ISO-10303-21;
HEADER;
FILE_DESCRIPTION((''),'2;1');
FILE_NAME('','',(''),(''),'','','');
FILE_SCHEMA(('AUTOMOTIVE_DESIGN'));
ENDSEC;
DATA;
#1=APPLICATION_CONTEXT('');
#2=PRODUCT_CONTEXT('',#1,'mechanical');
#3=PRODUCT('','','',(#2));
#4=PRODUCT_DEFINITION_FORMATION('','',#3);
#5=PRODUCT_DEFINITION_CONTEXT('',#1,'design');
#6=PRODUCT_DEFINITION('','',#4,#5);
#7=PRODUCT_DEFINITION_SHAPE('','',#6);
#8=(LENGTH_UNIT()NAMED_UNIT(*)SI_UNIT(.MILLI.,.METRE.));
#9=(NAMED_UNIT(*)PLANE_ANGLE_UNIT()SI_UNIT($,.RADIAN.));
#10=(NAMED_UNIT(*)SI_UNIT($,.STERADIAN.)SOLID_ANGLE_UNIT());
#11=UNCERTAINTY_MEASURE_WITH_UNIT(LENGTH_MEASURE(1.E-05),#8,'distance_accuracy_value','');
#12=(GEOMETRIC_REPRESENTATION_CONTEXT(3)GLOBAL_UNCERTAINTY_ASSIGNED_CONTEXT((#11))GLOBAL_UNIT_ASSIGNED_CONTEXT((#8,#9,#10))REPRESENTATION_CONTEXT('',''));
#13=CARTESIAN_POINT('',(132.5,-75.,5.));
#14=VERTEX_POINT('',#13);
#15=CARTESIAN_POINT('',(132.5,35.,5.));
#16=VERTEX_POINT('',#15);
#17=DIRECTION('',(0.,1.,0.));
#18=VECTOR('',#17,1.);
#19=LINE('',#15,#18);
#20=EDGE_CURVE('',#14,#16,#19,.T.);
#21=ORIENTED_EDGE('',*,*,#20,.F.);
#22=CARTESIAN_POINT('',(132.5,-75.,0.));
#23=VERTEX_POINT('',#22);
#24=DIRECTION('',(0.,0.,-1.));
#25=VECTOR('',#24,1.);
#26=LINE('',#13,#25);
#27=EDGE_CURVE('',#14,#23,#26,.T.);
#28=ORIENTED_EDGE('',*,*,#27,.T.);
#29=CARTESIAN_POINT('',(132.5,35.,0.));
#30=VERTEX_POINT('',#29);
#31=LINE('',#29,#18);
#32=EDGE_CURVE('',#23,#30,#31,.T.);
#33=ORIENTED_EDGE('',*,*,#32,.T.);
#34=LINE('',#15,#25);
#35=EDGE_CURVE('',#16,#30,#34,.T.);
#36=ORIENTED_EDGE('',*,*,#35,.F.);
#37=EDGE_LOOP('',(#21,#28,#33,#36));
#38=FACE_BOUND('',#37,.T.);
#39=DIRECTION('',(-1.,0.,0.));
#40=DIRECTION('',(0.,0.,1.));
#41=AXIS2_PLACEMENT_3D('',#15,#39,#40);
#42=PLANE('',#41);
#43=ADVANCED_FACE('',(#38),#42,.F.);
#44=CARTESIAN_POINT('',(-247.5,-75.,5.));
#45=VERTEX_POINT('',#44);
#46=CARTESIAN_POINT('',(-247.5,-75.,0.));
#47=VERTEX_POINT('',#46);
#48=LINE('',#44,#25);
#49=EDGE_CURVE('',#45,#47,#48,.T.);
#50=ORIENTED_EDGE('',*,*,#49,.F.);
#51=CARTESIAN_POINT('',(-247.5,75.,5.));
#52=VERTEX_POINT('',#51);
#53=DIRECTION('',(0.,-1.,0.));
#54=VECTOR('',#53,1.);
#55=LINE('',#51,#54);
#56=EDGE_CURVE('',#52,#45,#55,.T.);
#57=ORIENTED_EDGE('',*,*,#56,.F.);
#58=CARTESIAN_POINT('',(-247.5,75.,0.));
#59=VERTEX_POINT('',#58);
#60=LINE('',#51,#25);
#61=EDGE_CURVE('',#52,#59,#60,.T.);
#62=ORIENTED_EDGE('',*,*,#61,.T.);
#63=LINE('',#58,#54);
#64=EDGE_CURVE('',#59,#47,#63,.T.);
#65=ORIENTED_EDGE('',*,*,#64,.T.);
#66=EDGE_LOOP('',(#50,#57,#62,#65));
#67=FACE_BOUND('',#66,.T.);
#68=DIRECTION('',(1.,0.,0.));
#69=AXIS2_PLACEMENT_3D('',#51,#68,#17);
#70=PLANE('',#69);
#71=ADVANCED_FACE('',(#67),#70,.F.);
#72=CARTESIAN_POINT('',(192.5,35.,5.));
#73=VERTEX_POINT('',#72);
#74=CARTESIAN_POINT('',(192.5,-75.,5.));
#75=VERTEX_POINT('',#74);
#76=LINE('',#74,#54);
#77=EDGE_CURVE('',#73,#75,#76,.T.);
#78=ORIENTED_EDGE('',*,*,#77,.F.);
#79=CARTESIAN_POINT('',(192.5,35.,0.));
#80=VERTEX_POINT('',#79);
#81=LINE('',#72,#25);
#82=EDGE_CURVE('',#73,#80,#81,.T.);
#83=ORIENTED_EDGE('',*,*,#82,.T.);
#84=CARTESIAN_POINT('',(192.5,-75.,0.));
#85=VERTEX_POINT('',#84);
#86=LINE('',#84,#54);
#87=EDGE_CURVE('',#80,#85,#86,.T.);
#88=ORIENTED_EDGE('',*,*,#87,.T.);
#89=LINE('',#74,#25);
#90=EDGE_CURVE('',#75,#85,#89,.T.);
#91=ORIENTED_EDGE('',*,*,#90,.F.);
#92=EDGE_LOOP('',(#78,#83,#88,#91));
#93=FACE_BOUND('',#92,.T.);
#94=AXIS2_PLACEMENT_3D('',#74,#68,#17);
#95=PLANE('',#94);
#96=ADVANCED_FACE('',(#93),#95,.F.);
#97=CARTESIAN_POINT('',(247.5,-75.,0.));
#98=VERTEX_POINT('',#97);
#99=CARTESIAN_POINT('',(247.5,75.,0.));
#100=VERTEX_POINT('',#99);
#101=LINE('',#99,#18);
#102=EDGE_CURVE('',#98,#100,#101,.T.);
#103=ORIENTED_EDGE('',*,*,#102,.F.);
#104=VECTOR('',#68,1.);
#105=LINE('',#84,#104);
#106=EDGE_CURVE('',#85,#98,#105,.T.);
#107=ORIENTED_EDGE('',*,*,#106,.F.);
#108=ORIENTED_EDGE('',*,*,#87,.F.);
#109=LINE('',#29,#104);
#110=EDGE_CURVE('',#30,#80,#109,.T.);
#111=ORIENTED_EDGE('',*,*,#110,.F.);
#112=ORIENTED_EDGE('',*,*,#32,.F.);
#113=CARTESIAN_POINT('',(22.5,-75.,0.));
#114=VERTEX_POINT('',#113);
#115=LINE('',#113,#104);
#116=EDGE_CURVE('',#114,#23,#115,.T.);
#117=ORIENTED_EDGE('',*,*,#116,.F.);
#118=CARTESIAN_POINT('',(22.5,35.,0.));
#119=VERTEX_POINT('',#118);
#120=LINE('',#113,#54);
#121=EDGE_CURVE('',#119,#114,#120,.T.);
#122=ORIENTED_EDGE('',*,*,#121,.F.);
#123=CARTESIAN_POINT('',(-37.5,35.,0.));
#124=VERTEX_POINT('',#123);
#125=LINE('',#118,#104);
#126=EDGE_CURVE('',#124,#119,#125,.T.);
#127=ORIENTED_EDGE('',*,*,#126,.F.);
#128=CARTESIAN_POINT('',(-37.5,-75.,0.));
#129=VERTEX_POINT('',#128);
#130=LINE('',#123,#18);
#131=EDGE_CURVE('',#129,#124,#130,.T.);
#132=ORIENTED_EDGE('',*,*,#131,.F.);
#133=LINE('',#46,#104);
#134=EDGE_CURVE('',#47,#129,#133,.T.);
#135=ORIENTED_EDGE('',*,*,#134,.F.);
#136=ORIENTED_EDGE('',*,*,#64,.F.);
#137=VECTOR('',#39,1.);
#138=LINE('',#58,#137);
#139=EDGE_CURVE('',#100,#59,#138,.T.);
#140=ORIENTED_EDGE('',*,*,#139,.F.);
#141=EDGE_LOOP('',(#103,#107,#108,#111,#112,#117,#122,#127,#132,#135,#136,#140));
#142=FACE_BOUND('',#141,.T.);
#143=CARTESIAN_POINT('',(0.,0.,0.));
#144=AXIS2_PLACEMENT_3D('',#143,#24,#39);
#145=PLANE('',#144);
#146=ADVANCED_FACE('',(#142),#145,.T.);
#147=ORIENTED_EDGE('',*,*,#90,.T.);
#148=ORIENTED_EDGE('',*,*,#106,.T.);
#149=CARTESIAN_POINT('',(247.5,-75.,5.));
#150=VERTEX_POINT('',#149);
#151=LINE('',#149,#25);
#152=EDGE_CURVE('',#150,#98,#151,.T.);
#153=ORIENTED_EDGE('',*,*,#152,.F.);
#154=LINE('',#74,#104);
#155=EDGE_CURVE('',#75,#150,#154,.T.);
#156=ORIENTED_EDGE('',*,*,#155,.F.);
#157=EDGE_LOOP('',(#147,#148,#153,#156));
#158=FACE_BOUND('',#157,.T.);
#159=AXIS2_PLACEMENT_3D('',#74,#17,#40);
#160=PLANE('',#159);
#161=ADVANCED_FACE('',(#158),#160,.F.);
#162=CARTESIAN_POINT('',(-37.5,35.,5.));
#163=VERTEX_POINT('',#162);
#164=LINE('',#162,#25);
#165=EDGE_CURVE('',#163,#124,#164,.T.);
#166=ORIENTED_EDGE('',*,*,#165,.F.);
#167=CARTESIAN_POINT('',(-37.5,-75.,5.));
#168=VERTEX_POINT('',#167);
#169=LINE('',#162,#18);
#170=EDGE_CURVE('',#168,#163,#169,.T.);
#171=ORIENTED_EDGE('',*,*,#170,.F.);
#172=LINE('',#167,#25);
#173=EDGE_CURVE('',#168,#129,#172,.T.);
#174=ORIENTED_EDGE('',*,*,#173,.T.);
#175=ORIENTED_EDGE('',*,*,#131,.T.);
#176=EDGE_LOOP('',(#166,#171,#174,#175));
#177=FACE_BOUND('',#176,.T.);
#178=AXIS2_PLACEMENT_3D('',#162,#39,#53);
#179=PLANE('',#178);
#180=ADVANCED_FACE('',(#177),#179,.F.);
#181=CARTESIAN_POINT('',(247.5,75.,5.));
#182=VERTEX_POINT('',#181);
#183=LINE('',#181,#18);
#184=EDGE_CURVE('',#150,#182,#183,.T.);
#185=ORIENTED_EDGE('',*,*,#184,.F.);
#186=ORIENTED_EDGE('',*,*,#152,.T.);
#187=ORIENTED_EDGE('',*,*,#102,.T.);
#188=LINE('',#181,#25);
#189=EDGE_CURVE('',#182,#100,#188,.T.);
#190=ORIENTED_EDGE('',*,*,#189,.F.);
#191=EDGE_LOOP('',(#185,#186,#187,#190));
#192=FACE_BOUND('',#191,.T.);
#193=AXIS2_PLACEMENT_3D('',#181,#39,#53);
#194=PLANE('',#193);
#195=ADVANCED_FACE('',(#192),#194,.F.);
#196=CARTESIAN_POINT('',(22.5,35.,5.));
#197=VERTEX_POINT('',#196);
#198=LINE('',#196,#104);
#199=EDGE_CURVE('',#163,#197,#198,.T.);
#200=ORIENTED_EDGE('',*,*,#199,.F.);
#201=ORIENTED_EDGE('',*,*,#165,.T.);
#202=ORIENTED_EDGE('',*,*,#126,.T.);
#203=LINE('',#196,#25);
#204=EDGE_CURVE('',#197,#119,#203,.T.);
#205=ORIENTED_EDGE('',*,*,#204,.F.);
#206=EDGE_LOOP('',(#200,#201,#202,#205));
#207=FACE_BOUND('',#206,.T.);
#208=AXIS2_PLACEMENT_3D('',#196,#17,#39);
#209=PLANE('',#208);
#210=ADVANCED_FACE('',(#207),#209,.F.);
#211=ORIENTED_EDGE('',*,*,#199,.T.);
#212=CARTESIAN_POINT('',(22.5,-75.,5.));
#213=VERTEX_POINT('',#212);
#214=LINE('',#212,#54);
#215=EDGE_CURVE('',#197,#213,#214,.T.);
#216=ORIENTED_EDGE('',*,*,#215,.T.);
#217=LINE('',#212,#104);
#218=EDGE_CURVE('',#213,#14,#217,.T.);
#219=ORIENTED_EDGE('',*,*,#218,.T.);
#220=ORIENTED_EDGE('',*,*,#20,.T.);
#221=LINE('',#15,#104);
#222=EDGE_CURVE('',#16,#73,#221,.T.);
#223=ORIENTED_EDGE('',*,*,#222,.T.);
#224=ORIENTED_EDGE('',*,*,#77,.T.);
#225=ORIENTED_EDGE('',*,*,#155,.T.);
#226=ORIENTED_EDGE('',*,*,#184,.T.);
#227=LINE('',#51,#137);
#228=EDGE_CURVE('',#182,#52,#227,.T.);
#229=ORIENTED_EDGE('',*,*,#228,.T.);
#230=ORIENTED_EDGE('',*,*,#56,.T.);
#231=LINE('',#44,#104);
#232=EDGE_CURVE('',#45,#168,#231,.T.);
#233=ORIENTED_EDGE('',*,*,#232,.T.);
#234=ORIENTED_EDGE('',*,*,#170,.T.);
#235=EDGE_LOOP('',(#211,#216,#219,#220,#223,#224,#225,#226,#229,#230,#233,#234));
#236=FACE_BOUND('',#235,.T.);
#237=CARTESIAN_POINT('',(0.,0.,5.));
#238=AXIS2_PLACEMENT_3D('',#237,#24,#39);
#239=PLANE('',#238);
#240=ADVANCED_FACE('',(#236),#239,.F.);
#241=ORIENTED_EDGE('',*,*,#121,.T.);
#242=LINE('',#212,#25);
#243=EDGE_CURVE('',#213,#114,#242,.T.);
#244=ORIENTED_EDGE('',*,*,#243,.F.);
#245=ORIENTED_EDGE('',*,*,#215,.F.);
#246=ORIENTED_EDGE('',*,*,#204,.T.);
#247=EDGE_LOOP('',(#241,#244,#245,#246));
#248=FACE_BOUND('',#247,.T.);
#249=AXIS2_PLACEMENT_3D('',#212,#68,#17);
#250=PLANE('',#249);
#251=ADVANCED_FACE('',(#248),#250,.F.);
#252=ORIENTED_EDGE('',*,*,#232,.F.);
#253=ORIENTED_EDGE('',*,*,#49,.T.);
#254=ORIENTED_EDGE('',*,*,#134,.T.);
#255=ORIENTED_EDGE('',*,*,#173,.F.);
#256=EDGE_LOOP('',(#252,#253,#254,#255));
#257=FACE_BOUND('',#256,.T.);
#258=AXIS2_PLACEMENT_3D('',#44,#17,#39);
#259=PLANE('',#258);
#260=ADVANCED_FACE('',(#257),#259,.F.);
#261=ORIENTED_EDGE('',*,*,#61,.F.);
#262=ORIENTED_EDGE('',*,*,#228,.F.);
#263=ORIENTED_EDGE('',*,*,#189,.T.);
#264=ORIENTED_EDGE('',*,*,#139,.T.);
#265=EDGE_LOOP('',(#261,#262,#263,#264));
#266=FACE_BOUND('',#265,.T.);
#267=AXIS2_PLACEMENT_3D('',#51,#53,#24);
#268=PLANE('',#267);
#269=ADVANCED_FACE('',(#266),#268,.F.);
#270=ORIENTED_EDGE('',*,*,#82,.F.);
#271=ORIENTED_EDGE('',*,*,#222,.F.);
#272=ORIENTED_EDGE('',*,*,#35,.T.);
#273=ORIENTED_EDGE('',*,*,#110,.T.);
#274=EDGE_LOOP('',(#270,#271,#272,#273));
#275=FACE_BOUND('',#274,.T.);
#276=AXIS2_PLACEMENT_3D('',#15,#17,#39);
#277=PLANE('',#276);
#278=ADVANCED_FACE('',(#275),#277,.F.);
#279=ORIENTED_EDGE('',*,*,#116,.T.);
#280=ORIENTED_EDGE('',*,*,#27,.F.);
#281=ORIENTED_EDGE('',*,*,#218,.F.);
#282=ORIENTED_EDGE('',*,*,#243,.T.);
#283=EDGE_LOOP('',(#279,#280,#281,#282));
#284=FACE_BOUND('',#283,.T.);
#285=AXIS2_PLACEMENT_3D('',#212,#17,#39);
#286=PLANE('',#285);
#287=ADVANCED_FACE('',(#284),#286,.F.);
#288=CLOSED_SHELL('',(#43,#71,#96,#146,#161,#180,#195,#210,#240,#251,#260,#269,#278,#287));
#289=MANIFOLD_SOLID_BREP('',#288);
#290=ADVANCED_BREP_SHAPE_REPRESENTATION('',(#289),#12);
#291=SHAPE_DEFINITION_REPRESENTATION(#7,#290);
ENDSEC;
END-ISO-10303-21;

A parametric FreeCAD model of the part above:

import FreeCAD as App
import Part
import Sketcher

doc = App.newDocument("Part")
params = doc.addObject("Spreadsheet::Sheet", "Params")
for row, (alias, value) in enumerate([
    ("sketch1_width", "495 mm"),
    ("sketch1_width2", "210 mm"),
    ("sketch1_width3", "60 mm"),
    ("sketch1_width4", "110 mm"),
    ("sketch1_height", "150 mm"),
    ("pad1_length", "5 mm"),
], start=1):
    params.set(f"A{row}", alias)
    params.set(f"B{row}", "=" + value)
    params.setAlias(f"B{row}", alias)

body = doc.addObject("PartDesign::Body", "Body")

# Sketch on XY plane
sketch1 = body.newObject("Sketcher::SketchObject", "Sketch")
sketch1.AttachmentSupport = (doc.getObject("XY_Plane"), [""])
sketch1.MapMode = "FlatFace"
sketch1.addGeometry([
    Part.LineSegment(App.Vector(248, 75, 0), App.Vector(-248, 75, 0)),  # 0
    Part.LineSegment(App.Vector(-248, 75, 0), App.Vector(-248, -75, 0)),  # 1
    Part.LineSegment(App.Vector(-248, -75, 0), App.Vector(-38, -75, 0)),  # 2
    Part.LineSegment(App.Vector(-38, -75, 0), App.Vector(-38, 35, 0)),  # 3
    Part.LineSegment(App.Vector(-38, 35, 0), App.Vector(22, 35, 0)),  # 4
    Part.LineSegment(App.Vector(22, 35, 0), App.Vector(22, -75, 0)),  # 5
    Part.LineSegment(App.Vector(22, -75, 0), App.Vector(132, -75, 0)),  # 6
    Part.LineSegment(App.Vector(132, -75, 0), App.Vector(132, 35, 0)),  # 7
    Part.LineSegment(App.Vector(132, 35, 0), App.Vector(192, 35, 0)),  # 8
    Part.LineSegment(App.Vector(192, 35, 0), App.Vector(192, -75, 0)),  # 9
    Part.LineSegment(App.Vector(192, -75, 0), App.Vector(248, -75, 0)),  # 10
    Part.LineSegment(App.Vector(248, -75, 0), App.Vector(248, 75, 0)),  # 11
], False)
sketch1.addConstraint([
    Sketcher.Constraint("Coincident", 0, 2, 1, 1),
    Sketcher.Constraint("Coincident", 1, 2, 2, 1),
    Sketcher.Constraint("Coincident", 2, 2, 3, 1),
    Sketcher.Constraint("Coincident", 3, 2, 4, 1),
    Sketcher.Constraint("Coincident", 4, 2, 5, 1),
    Sketcher.Constraint("Coincident", 5, 2, 6, 1),
    Sketcher.Constraint("Coincident", 6, 2, 7, 1),
    Sketcher.Constraint("Coincident", 7, 2, 8, 1),
    Sketcher.Constraint("Coincident", 8, 2, 9, 1),
    Sketcher.Constraint("Coincident", 9, 2, 10, 1),
    Sketcher.Constraint("Coincident", 10, 2, 11, 1),
    Sketcher.Constraint("Coincident", 11, 2, 0, 1),
    Sketcher.Constraint("Horizontal", 0),
    Sketcher.Constraint("Vertical", 1),
    Sketcher.Constraint("Horizontal", 2),
    Sketcher.Constraint("Vertical", 3),
    Sketcher.Constraint("Horizontal", 4),
    Sketcher.Constraint("Vertical", 5),
    Sketcher.Constraint("Horizontal", 6),
    Sketcher.Constraint("Vertical", 7),
    Sketcher.Constraint("Horizontal", 8),
    Sketcher.Constraint("Vertical", 9),
    Sketcher.Constraint("Horizontal", 10),
    Sketcher.Constraint("Vertical", 11),
    Sketcher.Constraint("Symmetric", 0, 2, 10, 2, -1, 1),
    Sketcher.Constraint("Horizontal", 2, 2, 5, 2),
    Sketcher.Constraint("Horizontal", 4, 2, 7, 2),
    Sketcher.Constraint("Horizontal", 6, 2, 9, 2),
    Sketcher.Constraint("Equal", 4, 8),
    Sketcher.Constraint("Equal", 6, 3),
    Sketcher.Constraint("DistanceX", 0, 2, 0, 1, 495.0),
    Sketcher.Constraint("DistanceX", 2, 1, 2, 2, 210.0),
    Sketcher.Constraint("DistanceX", 4, 1, 4, 2, 60.0),
    Sketcher.Constraint("DistanceX", 6, 1, 6, 2, 110.0),
    Sketcher.Constraint("DistanceY", 1, 2, 1, 1, 150.0),
])
sketch1.setExpression("Constraints[30]", "Params.sketch1_width")
sketch1.setExpression("Constraints[31]", "Params.sketch1_width2")
sketch1.setExpression("Constraints[32]", "Params.sketch1_width3")
sketch1.setExpression("Constraints[33]", "Params.sketch1_width4")
sketch1.setExpression("Constraints[34]", "Params.sketch1_height")
pad1 = body.newObject("PartDesign::Pad", "Pad")
pad1.Profile = sketch1
pad1.setExpression("Length", "Params.pad1_length")

doc.recompute()
